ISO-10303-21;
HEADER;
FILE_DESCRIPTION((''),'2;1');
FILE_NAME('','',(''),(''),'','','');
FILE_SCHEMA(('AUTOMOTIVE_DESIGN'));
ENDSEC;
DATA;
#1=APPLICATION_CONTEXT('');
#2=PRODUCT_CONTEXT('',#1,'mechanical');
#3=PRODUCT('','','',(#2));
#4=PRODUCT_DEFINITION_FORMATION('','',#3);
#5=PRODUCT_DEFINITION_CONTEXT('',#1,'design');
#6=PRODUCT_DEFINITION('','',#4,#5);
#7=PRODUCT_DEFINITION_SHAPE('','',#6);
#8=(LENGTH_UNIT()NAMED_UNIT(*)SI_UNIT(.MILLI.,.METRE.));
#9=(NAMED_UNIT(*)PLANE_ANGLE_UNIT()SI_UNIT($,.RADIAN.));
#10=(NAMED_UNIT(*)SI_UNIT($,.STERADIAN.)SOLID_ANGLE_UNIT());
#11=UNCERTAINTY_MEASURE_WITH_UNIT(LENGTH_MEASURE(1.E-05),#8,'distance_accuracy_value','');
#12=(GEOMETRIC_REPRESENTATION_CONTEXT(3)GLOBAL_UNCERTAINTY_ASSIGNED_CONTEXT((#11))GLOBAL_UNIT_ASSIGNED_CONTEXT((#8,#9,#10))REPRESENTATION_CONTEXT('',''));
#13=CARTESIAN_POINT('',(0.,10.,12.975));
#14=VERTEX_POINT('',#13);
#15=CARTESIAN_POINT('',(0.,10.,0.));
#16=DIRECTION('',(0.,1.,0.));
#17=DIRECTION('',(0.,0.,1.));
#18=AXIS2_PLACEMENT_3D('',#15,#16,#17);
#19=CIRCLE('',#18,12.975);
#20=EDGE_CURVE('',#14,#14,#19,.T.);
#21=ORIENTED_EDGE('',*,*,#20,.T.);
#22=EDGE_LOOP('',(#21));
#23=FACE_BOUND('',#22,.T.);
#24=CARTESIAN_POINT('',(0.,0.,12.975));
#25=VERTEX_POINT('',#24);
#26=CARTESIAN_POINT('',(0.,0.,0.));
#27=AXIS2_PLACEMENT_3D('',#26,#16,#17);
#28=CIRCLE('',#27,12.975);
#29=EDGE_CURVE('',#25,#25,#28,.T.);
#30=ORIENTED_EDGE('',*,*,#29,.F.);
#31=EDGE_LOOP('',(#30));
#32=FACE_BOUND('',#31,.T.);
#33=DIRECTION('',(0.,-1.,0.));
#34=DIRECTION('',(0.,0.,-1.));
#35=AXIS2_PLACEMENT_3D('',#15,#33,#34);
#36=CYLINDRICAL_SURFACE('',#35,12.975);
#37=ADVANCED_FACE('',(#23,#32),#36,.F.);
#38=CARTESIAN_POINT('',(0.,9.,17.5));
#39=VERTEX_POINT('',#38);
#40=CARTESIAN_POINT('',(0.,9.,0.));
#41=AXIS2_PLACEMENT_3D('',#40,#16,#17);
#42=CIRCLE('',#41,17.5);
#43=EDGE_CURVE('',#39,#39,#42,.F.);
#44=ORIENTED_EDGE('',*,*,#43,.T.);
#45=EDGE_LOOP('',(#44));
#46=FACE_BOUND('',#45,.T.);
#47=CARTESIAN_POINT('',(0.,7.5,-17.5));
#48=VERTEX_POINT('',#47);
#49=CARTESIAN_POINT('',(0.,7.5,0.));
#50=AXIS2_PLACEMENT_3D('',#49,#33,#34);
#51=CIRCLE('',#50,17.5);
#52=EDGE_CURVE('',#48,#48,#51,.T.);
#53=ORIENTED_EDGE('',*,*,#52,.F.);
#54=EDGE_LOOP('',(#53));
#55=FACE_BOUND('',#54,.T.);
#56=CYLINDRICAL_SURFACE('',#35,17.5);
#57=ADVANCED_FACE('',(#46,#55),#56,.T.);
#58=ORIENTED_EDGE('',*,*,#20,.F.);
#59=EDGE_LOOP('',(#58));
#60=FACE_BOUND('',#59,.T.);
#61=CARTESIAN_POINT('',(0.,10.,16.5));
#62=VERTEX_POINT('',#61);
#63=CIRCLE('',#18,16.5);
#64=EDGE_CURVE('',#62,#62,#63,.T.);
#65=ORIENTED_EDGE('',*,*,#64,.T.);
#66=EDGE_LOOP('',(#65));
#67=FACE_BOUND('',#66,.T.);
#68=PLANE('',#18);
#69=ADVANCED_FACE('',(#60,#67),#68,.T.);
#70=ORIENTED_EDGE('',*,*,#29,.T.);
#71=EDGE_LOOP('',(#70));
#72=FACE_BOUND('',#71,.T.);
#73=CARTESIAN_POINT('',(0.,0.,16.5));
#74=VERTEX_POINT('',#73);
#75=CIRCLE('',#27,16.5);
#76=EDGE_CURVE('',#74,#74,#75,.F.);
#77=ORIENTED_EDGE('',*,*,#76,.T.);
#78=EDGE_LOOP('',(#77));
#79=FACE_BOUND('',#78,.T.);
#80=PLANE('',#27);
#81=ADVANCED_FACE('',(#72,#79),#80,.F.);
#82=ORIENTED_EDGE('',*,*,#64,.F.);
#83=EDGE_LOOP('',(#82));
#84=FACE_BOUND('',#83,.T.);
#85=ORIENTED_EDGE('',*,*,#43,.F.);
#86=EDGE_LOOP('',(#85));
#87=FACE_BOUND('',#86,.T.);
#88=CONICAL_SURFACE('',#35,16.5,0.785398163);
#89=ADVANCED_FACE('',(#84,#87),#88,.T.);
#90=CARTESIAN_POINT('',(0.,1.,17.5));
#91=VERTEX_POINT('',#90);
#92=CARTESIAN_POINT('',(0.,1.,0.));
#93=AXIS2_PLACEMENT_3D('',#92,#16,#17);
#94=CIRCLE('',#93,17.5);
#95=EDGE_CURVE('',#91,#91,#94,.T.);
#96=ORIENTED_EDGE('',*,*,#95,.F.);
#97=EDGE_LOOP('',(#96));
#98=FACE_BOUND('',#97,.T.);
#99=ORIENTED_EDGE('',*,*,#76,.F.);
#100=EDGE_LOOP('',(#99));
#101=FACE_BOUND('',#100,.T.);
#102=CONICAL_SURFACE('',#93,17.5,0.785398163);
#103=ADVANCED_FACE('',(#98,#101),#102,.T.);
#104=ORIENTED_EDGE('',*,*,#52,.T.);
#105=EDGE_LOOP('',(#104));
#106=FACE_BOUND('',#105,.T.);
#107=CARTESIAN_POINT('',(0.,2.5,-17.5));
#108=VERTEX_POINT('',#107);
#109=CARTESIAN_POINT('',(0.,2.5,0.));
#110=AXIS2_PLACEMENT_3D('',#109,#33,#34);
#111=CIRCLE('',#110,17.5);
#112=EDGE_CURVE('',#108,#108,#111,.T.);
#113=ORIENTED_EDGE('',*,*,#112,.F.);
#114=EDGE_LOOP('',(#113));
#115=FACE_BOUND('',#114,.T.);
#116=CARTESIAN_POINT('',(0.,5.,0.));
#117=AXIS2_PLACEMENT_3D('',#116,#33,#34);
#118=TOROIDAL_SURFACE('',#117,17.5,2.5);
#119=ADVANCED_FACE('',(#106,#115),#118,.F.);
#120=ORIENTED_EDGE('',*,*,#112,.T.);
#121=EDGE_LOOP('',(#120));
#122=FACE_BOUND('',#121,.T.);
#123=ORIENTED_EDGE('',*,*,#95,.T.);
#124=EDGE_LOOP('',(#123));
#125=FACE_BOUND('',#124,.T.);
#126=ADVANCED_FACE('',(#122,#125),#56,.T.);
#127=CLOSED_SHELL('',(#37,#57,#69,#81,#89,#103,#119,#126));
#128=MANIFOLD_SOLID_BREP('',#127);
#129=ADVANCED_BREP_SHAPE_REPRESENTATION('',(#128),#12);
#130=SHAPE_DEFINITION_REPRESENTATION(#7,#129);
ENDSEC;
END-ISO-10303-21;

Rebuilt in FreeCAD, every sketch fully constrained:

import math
import FreeCAD as App
import Part
import Sketcher
from FreeCAD import Vector
Q = App.Units.Quantity


def edges_at(feature, points):
    """Names of the edges that pass closest to the given points."""
    edges = feature.Shape.Edges
    near = lambda p: min(range(len(edges)), key=lambda i: edges[i].distToShape(Part.Vertex(*p))[0])
    return sorted({f"Edge{near(p) + 1}" for p in points})

doc = App.newDocument("Part")
body = doc.addObject("PartDesign::Body", "Body")

# Sketch on XZ plane
sketch1 = body.newObject("Sketcher::SketchObject", "Sketch")
sketch1.AttachmentSupport = (doc.getObject("XZ_Plane"), [""])
sketch1.MapMode = "FlatFace"
sketch1.addGeometry(Part.Circle(Vector(0, 0, 0), Vector(0, 0, 1), 18), False)
sketch1.addGeometry(Part.Circle(Vector(0, 0, 0), Vector(0, 0, 1), 13), False)
sketch1.addConstraint(Sketcher.Constraint("Coincident", 0, 3, -1, 1))
sketch1.addConstraint(Sketcher.Constraint("Coincident", 1, 3, -1, 1))
sketch1.addConstraint(Sketcher.Constraint("Diameter", 0, Q("35 mm")))
sketch1.addConstraint(Sketcher.Constraint("Diameter", 1, Q("25.95 mm")))
pad1 = body.newObject("PartDesign::Pad", "Pad")
pad1.Profile = sketch1
pad1.Length = 10
pad1.Reversed = True
doc.recompute()

chamfer = body.newObject("PartDesign::Chamfer", "Chamfer")
chamfer.Base = (pad1, edges_at(pad1, [(0, 10, -17.5), (0, 0, -17.5)]))
chamfer.Size = 1

# Sketch on XY plane
sketch2 = body.newObject("Sketcher::SketchObject", "Sketch001")
sketch2.AttachmentSupport = (doc.getObject("XY_Plane"), [""])
sketch2.MapMode = "FlatFace"
sketch2.addGeometry(Part.ArcOfCircle(Part.Circle(Vector(-17.5, 5, 0), Vector(0, 0, 1), 2.5), math.radians(-90), math.radians(90)), False)
sketch2.addGeometry(Part.LineSegment(Vector(-17.5, 7.5, 0), Vector(-17.5, 2.5, 0)), False)
sketch2.addConstraint(Sketcher.Constraint("Coincident", 0, 1, 1, 2))
sketch2.addConstraint(Sketcher.Constraint("Coincident", 1, 1, 0, 2))
sketch2.addConstraint(Sketcher.Constraint("Vertical", 1))
sketch2.addConstraint(Sketcher.Constraint("Radius", 0, Q("2.5 mm")))
sketch2.addConstraint(Sketcher.Constraint("DistanceY", -1, 1, 0, 3, Q("5 mm")))
sketch2.addConstraint(Sketcher.Constraint("DistanceX", 0, 3, -1, 1, Q("17.5 mm")))
sketch2.addConstraint(Sketcher.Constraint("DistanceX", 0, 1, -1, 1, Q("17.5 mm")))
groove = body.newObject("PartDesign::Groove", "Groove")
groove.Profile = sketch2
groove.ReferenceAxis = (sketch2, ["V_Axis"])
groove.Angle = 360

doc.recompute()
